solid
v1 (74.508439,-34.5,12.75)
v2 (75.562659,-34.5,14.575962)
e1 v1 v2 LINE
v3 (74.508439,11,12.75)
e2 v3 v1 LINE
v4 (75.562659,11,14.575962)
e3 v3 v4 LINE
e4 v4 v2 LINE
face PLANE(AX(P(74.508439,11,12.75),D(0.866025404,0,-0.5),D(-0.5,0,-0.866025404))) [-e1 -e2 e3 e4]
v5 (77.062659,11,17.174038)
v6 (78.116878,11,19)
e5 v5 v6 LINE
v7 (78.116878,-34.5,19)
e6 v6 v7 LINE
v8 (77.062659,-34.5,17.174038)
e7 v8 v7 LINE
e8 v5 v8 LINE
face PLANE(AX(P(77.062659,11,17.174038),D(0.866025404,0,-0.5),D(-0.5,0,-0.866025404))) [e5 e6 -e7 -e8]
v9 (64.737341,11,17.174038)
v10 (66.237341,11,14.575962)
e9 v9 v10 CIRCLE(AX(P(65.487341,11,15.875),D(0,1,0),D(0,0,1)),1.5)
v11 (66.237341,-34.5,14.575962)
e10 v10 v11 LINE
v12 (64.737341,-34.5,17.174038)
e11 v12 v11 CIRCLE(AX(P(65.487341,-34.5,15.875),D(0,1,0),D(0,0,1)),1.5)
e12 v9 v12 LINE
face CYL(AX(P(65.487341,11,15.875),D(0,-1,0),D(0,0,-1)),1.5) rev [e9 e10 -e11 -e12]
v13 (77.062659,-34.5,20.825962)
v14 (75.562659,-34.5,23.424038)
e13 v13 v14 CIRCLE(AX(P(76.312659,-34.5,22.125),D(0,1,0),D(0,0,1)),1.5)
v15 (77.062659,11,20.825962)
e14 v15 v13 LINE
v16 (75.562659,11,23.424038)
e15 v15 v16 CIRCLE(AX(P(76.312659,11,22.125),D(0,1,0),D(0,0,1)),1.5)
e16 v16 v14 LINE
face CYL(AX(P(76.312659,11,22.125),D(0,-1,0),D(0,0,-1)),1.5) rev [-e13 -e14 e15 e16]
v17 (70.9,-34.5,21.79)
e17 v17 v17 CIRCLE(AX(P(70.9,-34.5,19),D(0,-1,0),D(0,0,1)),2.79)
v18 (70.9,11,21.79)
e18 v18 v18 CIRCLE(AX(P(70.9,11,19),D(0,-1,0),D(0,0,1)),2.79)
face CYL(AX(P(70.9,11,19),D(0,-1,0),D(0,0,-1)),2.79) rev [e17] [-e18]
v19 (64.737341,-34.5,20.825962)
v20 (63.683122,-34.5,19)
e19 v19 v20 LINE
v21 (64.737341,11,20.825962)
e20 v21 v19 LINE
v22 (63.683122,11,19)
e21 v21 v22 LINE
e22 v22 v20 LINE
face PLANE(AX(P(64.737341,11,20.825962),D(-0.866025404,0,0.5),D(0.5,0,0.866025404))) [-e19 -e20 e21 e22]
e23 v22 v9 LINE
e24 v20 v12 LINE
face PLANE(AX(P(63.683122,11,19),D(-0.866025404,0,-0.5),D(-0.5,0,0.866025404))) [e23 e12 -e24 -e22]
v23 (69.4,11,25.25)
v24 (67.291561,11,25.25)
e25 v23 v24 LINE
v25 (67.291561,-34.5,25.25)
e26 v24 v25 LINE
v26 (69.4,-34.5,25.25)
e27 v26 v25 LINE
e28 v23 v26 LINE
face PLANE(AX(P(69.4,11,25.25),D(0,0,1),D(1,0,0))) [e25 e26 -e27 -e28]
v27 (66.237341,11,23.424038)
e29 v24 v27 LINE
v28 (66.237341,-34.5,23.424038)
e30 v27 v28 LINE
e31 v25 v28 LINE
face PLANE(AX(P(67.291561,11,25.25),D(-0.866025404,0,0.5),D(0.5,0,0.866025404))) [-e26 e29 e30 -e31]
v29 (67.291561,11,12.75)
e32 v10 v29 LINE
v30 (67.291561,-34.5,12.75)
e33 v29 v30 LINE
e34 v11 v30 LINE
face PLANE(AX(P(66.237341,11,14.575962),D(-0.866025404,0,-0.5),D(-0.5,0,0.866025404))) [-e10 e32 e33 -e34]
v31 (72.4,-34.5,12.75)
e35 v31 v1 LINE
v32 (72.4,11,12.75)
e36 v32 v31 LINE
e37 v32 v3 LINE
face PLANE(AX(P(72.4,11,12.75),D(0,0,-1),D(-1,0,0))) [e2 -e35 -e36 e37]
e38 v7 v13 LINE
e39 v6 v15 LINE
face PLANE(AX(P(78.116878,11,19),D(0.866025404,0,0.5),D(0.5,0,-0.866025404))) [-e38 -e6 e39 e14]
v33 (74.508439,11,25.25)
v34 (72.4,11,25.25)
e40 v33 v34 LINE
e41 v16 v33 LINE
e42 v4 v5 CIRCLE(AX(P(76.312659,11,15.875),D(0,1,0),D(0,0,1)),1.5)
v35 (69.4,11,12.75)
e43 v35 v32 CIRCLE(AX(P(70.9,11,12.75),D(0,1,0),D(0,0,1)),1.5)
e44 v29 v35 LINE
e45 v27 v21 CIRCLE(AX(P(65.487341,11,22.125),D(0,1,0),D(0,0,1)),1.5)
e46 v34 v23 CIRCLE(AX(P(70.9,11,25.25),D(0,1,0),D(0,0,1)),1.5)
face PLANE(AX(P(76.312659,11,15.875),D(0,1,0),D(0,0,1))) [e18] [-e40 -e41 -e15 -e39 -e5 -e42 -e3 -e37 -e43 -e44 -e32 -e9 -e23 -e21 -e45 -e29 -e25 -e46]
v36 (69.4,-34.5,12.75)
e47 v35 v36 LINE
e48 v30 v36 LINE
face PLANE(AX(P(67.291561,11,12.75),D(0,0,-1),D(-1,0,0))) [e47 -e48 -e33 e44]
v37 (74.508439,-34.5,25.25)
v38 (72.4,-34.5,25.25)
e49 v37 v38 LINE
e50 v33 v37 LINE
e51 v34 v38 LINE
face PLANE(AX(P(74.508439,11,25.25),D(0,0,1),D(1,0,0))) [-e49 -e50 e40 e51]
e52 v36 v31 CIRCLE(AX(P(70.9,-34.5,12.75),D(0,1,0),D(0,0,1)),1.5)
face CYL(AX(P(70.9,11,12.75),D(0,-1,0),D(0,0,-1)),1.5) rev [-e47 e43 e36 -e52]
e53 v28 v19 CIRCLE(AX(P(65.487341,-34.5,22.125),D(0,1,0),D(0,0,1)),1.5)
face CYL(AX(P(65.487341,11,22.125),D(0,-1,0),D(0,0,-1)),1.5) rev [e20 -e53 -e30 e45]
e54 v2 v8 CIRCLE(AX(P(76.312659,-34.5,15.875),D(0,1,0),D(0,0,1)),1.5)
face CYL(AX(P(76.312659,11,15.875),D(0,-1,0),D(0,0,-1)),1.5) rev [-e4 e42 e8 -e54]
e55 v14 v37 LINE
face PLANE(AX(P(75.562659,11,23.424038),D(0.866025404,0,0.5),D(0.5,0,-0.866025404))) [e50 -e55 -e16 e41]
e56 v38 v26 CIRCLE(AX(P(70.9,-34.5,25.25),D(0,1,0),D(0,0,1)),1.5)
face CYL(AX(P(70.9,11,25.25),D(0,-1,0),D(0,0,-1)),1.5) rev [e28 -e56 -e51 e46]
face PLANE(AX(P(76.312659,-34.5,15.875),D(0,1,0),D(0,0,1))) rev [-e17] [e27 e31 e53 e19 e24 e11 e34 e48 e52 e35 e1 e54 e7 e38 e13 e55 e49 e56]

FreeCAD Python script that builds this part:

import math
import FreeCAD as App
import Part
import Sketcher

V = App.Vector
Q = App.Units.Quantity

doc = App.newDocument("Part")
body = doc.addObject("PartDesign::Body", "Body")

sketch1 = body.newObject("Sketcher::SketchObject", "Sketch")
sketch1.AttachmentSupport = (doc.getObject("XZ_Plane"), [""])
sketch1.MapMode = "FlatFace"
sketch1.AttachmentOffset = App.Placement(V(0, 0, 34.5), App.Rotation())
sketch1.addGeometry([
    Part.LineSegment(V(77.1, 17.2, 0), V(78.1, 19, 0)),
    Part.LineSegment(V(78.1, 19, 0), V(77.1, 20.8, 0)),
    Part.ArcOfCircle(Part.Circle(V(76.3, 22.1, 0), V(0, 0, 1), 1.5), math.radians(120), math.radians(300)),
    Part.LineSegment(V(75.6, 23.4, 0), V(74.5, 25.2, 0)),
    Part.LineSegment(V(74.5, 25.2, 0), V(72.4, 25.2, 0)),
    Part.ArcOfCircle(Part.Circle(V(70.9, 25.2, 0), V(0, 0, 1), 1.5), math.radians(180), math.radians(360)),
    Part.LineSegment(V(69.4, 25.2, 0), V(67.3, 25.2, 0)),
    Part.LineSegment(V(67.3, 25.2, 0), V(66.2, 23.4, 0)),
    Part.ArcOfCircle(Part.Circle(V(65.5, 22.1, 0), V(0, 0, 1), 1.5), math.radians(-120), math.radians(60)),
    Part.LineSegment(V(64.7, 20.8, 0), V(63.7, 19, 0)),
    Part.LineSegment(V(63.7, 19, 0), V(64.7, 17.2, 0)),
    Part.ArcOfCircle(Part.Circle(V(65.5, 15.9, 0), V(0, 0, 1), 1.5), math.radians(-60), math.radians(120)),
    Part.LineSegment(V(66.2, 14.6, 0), V(67.3, 12.8, 0)),
    Part.LineSegment(V(67.3, 12.8, 0), V(69.4, 12.8, 0)),
    Part.ArcOfCircle(Part.Circle(V(70.9, 12.8, 0), V(0, 0, 1), 1.5), math.radians(0), math.radians(180)),
    Part.LineSegment(V(72.4, 12.8, 0), V(74.5, 12.8, 0)),
    Part.LineSegment(V(74.5, 12.8, 0), V(75.6, 14.6, 0)),
    Part.ArcOfCircle(Part.Circle(V(76.3, 15.9, 0), V(0, 0, 1), 1.5), math.radians(60), math.radians(240)),
    Part.Circle(V(70.9, 19, 0), V(0, 0, 1), 2.8),
], False)
sketch1.addConstraint([
    Sketcher.Constraint("Coincident", 0, 2, 1, 1),
    Sketcher.Constraint("Coincident", 1, 2, 2, 2),
    Sketcher.Constraint("Coincident", 2, 1, 3, 1),
    Sketcher.Constraint("Coincident", 3, 2, 4, 1),
    Sketcher.Constraint("Coincident", 4, 2, 5, 2),
    Sketcher.Constraint("Coincident", 5, 1, 6, 1),
    Sketcher.Constraint("Coincident", 6, 2, 7, 1),
    Sketcher.Constraint("Coincident", 7, 2, 8, 2),
    Sketcher.Constraint("Coincident", 8, 1, 9, 1),
    Sketcher.Constraint("Coincident", 9, 2, 10, 1),
    Sketcher.Constraint("Coincident", 10, 2, 11, 2),
    Sketcher.Constraint("Coincident", 11, 1, 12, 1),
    Sketcher.Constraint("Coincident", 12, 2, 13, 1),
    Sketcher.Constraint("Coincident", 13, 2, 14, 2),
    Sketcher.Constraint("Coincident", 14, 1, 15, 1),
    Sketcher.Constraint("Coincident", 15, 2, 16, 1),
    Sketcher.Constraint("Coincident", 16, 2, 17, 2),
    Sketcher.Constraint("Coincident", 17, 1, 0, 1),
    Sketcher.Constraint("Horizontal", 4),
    Sketcher.Constraint("Horizontal", 6),
    Sketcher.Constraint("Horizontal", 13),
    Sketcher.Constraint("Horizontal", 15),
    Sketcher.Constraint("Equal", 2, 5),
    Sketcher.Constraint("Equal", 5, 8),
    Sketcher.Constraint("Equal", 8, 11),
    Sketcher.Constraint("Equal", 11, 14),
    Sketcher.Constraint("Equal", 14, 17),
    Sketcher.Constraint("Parallel", 1, 3),
    Sketcher.Constraint("Parallel", 0, 7),
    Sketcher.Constraint("Parallel", 7, 9),
    Sketcher.Constraint("Parallel", 3, 10),
    Sketcher.Constraint("Parallel", 10, 12),
    Sketcher.Constraint("Parallel", 9, 16),
    Sketcher.Constraint("Horizontal", 2, 3, 8, 3),
    Sketcher.Constraint("Horizontal", 11, 3, 17, 3),
    Sketcher.Constraint("Horizontal", 18, 3, 0, 2),
    Sketcher.Constraint("Horizontal", 5, 3, 3, 2),
    Sketcher.Constraint("Horizontal", 4, 2, 5, 1),
    Sketcher.Constraint("Horizontal", 2, 1, 7, 2),
    Sketcher.Constraint("Horizontal", 1, 2, 8, 1),
    Sketcher.Constraint("Horizontal", 0, 2, 9, 2),
    Sketcher.Constraint("Horizontal", 14, 3, 12, 2),
    Sketcher.Constraint("Horizontal", 13, 2, 14, 1),
    Sketcher.Constraint("Horizontal", 11, 1, 16, 2),
    Sketcher.Constraint("Horizontal", 10, 2, 17, 1),
    Sketcher.Constraint("Vertical", 8, 3, 11, 3),
    Sketcher.Constraint("Vertical", 5, 3, 14, 3),
    Sketcher.Constraint("Vertical", 2, 3, 17, 3),
    Sketcher.Constraint("Vertical", 14, 3, 18, 3),
    Sketcher.Constraint("Vertical", 8, 1, 10, 2),
    Sketcher.Constraint("Vertical", 7, 2, 11, 1),
    Sketcher.Constraint("Vertical", 6, 2, 12, 2),
    Sketcher.Constraint("Equal", 4, 6),
    Sketcher.Constraint("Equal", 1, 3),
    Sketcher.Constraint("Radius", 2, 1.5),
    Sketcher.Constraint("Diameter", 18, 5.58),
    Sketcher.Constraint("Angle", 0, Q("60 deg")),
    Sketcher.Constraint("DistanceY", -1, 1, 18, 3, 19.0),
    Sketcher.Constraint("DistanceX", -1, 1, 5, 3, 70.9),
    Sketcher.Constraint("DistanceY", 14, 3, 5, 3, 12.5),
    Sketcher.Constraint("DistanceX", 2, 1, 1, 2, 1.5),
    Sketcher.Constraint("DistanceY", 11, 3, 8, 3, 6.25),
    Sketcher.Constraint("DistanceX", 4, 2, 4, 1, 2.108439),
])
pad1 = body.newObject("PartDesign::Pad", "Pad")
pad1.Profile = sketch1
pad1.Length = 45.5
pad1.Reversed = True

doc.recompute()
